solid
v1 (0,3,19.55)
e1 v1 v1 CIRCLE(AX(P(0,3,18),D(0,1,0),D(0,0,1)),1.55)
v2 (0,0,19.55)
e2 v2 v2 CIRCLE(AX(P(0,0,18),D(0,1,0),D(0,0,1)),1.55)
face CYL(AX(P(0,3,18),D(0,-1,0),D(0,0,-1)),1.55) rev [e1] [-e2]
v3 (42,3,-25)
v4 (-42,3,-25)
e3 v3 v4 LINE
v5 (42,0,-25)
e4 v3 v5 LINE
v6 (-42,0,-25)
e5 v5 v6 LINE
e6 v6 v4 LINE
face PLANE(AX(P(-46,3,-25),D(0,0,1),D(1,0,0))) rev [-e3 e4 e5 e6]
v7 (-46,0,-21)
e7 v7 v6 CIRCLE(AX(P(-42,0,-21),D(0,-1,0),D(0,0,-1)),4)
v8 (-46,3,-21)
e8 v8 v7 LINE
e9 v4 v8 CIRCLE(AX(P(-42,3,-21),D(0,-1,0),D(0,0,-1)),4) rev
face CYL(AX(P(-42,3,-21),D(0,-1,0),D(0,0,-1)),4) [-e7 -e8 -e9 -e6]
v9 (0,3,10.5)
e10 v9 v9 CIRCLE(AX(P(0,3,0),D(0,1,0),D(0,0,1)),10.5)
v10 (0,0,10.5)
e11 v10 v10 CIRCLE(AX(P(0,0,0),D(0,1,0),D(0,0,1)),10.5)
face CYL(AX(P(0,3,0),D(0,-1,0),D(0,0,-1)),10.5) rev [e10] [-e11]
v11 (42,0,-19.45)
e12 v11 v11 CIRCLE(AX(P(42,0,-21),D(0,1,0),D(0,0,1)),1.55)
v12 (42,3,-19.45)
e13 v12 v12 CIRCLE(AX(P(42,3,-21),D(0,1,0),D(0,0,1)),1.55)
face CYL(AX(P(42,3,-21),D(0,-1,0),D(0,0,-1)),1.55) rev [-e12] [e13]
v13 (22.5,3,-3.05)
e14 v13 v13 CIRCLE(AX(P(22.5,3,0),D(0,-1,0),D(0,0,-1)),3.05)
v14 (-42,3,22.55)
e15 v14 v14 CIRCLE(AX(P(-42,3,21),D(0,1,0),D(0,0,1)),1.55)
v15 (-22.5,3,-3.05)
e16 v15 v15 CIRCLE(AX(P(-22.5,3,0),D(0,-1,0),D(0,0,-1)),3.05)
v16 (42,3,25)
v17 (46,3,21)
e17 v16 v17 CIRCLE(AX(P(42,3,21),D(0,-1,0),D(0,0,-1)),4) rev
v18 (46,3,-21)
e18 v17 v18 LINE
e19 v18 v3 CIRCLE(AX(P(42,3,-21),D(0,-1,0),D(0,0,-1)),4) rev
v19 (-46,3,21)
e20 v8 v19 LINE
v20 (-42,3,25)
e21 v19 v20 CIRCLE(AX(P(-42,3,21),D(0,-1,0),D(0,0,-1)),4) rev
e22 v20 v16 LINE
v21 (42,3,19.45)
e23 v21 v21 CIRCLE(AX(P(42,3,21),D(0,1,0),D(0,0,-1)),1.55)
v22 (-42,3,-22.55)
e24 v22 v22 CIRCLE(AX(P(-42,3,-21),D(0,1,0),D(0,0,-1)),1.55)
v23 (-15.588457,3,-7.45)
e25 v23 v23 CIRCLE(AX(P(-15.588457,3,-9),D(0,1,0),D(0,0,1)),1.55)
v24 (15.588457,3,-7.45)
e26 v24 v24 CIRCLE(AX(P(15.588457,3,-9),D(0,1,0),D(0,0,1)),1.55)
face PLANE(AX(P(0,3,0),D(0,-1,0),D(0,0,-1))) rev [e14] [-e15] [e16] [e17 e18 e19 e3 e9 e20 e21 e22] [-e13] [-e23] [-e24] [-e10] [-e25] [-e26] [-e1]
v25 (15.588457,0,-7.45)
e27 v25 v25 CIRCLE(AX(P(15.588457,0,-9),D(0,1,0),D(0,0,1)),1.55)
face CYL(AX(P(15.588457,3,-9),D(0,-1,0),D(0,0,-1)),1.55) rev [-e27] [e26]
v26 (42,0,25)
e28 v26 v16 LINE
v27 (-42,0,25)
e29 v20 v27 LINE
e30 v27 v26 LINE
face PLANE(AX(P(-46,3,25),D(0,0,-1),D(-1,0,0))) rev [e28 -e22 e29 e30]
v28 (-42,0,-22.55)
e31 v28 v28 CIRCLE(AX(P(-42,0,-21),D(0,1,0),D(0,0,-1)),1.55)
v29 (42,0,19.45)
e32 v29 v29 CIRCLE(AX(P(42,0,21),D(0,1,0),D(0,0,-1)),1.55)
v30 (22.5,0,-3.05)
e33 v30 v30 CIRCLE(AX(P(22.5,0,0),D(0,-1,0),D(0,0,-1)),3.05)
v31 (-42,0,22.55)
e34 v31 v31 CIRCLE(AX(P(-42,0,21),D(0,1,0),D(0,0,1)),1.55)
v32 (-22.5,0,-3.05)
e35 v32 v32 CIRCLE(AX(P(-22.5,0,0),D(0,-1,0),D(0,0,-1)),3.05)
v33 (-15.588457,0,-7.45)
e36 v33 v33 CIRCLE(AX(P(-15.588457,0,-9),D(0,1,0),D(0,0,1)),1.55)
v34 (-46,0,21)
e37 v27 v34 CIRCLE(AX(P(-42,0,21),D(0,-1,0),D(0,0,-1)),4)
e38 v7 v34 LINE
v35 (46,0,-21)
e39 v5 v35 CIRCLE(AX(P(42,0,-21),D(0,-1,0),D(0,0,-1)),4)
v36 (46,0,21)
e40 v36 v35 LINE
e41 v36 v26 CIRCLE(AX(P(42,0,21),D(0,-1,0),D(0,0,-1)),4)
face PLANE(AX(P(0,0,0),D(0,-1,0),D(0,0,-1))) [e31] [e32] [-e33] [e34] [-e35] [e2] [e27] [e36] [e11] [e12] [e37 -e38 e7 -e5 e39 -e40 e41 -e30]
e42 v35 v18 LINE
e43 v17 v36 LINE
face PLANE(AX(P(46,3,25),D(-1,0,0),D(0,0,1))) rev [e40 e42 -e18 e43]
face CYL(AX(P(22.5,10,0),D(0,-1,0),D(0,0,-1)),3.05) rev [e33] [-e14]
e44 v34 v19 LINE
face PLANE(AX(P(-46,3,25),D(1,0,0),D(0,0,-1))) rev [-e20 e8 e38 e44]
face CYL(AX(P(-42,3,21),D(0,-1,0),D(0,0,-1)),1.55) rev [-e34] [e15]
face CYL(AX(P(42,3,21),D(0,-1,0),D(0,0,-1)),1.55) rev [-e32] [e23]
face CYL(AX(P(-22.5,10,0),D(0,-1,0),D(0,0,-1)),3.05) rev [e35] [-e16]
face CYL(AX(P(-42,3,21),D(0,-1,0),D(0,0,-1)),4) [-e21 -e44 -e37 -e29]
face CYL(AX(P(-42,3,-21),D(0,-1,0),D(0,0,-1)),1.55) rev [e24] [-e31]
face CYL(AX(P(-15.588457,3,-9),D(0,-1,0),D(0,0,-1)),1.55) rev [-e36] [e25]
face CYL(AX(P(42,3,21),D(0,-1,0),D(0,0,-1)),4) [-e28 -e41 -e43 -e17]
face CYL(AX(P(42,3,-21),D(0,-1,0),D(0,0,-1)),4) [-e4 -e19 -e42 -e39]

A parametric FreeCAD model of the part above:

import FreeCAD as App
import Part
import Sketcher


def edges_at(feature, points):
    """Names of the edges that pass closest to the given points."""
    edges = feature.Shape.Edges
    near = lambda p: min(range(len(edges)), key=lambda i: edges[i].distToShape(Part.Vertex(*p))[0])
    return sorted({f"Edge{near(p) + 1}" for p in points})


def add_polygon(sketch, points):
    """Adds a closed chain of lines whose ends are joined by coincident constraints."""
    first, n = sketch.GeometryCount, len(points)
    for a, b in zip(points, points[1:] + points[:1]):
        sketch.addGeometry(Part.LineSegment(App.Vector(*a, 0), App.Vector(*b, 0)), False)
    for i in range(n):
        sketch.addConstraint(Sketcher.Constraint("Coincident", first + i, 2, first + (i + 1) % n, 1))

doc = App.newDocument("Part")
body = doc.addObject("PartDesign::Body", "Body")

sketch1 = body.newObject("Sketcher::SketchObject", "Sketch")
sketch1.AttachmentSupport = (doc.getObject("XZ_Plane"), [""])
sketch1.MapMode = "FlatFace"
add_polygon(sketch1, [(-46, -25), (-46, 25), (46, 25), (46, -25)])
sketch1.addGeometry(Part.Circle(App.Vector(-42, 21, 0), App.Vector(0, 0, 1), 1.55), False)
sketch1.addGeometry(Part.Circle(App.Vector(0, 18, 0), App.Vector(0, 0, 1), 1.55), False)
sketch1.addGeometry(Part.Circle(App.Vector(42, 21, 0), App.Vector(0, 0, 1), 1.55), False)
sketch1.addGeometry(Part.Circle(App.Vector(-15.588457, -9, 0), App.Vector(0, 0, 1), 1.55), False)
sketch1.addGeometry(Part.Circle(App.Vector(-42, -21, 0), App.Vector(0, 0, 1), 1.55), False)
sketch1.addGeometry(Part.Circle(App.Vector(0, 0, 0), App.Vector(0, 0, 1), 10.5), False)
sketch1.addGeometry(Part.Circle(App.Vector(15.588457, -9, 0), App.Vector(0, 0, 1), 1.55), False)
sketch1.addGeometry(Part.Circle(App.Vector(42, -21, 0), App.Vector(0, 0, 1), 1.55), False)
sketch1.addConstraint([
    Sketcher.Constraint("Vertical", 0),
    Sketcher.Constraint("Horizontal", 1),
    Sketcher.Constraint("Vertical", 2),
    Sketcher.Constraint("Horizontal", 3),
    Sketcher.Constraint("Coincident", 9, 3, -1, 1),
    Sketcher.Constraint("Equal", 4, 5),
    Sketcher.Constraint("Equal", 5, 6),
    Sketcher.Constraint("Equal", 6, 7),
    Sketcher.Constraint("Equal", 7, 8),
    Sketcher.Constraint("Equal", 8, 10),
    Sketcher.Constraint("Equal", 10, 11),
    Sketcher.Constraint("Symmetric", 6, 3, 8, 3, -1, 1),
    Sketcher.Constraint("Symmetric", 4, 3, 11, 3, -1, 1),
    Sketcher.Constraint("Symmetric", 0, 2, 2, 2, -1, 1),
    Sketcher.Constraint("Symmetric", 4, 3, 6, 3, -2),
    Sketcher.Constraint("Symmetric", 7, 3, 10, 3, -2),
    Sketcher.Constraint("PointOnObject", 5, 3, -2),
    Sketcher.Constraint("Diameter", 9, 21.0),
    Sketcher.Constraint("Diameter", 4, 3.1),
    Sketcher.Constraint("DistanceX", 1, 1, 1, 2, 92.0),
    Sketcher.Constraint("DistanceY", 0, 1, 0, 2, 50.0),
    Sketcher.Constraint("DistanceX", 4, 3, -1, 1, 42.0),
    Sketcher.Constraint("DistanceY", -1, 1, 4, 3, 21.0),
    Sketcher.Constraint("DistanceY", -1, 1, 5, 3, 18.0),
    Sketcher.Constraint("DistanceY", 7, 3, -1, 1, 9.0),
    Sketcher.Constraint("DistanceX", 7, 3, -1, 1, 15.588457),
])
pad1 = body.newObject("PartDesign::Pad", "Pad")
pad1.Profile = sketch1
pad1.Length = 3
pad1.Reversed = True
doc.recompute()

fillet = body.newObject("PartDesign::Fillet", "Fillet")
fillet.Base = (pad1, edges_at(pad1, [
    (46, 1.5, 25),
    (-46, 1.5, 25),
    (-46, 1.5, -25),
    (46, 1.5, -25),
]))
fillet.Radius = 4

sketch2 = body.newObject("Sketcher::SketchObject", "Sketch001")
sketch2.AttachmentSupport = (doc.getObject("XZ_Plane"), [""])
sketch2.MapMode = "FlatFace"
sketch2.addGeometry([
    Part.Circle(App.Vector(-22.5, 0, 0), App.Vector(0, 0, 1), 3.05),
    Part.Circle(App.Vector(22.5, 0, 0), App.Vector(0, 0, 1), 3.05),
], False)
sketch2.addConstraint([
    Sketcher.Constraint("Equal", 0, 1),
    Sketcher.Constraint("Symmetric", 0, 3, 1, 3, -1, 1),
    Sketcher.Constraint("PointOnObject", 0, 3, -1),
    Sketcher.Constraint("Diameter", 0, 6.1),
    Sketcher.Constraint("DistanceX", 0, 3, 1, 3, 45.0),
])
pocket1 = body.newObject("PartDesign::Pocket", "Pocket")
pocket1.Profile = sketch2
pocket1.Length = 10

doc.recompute()
